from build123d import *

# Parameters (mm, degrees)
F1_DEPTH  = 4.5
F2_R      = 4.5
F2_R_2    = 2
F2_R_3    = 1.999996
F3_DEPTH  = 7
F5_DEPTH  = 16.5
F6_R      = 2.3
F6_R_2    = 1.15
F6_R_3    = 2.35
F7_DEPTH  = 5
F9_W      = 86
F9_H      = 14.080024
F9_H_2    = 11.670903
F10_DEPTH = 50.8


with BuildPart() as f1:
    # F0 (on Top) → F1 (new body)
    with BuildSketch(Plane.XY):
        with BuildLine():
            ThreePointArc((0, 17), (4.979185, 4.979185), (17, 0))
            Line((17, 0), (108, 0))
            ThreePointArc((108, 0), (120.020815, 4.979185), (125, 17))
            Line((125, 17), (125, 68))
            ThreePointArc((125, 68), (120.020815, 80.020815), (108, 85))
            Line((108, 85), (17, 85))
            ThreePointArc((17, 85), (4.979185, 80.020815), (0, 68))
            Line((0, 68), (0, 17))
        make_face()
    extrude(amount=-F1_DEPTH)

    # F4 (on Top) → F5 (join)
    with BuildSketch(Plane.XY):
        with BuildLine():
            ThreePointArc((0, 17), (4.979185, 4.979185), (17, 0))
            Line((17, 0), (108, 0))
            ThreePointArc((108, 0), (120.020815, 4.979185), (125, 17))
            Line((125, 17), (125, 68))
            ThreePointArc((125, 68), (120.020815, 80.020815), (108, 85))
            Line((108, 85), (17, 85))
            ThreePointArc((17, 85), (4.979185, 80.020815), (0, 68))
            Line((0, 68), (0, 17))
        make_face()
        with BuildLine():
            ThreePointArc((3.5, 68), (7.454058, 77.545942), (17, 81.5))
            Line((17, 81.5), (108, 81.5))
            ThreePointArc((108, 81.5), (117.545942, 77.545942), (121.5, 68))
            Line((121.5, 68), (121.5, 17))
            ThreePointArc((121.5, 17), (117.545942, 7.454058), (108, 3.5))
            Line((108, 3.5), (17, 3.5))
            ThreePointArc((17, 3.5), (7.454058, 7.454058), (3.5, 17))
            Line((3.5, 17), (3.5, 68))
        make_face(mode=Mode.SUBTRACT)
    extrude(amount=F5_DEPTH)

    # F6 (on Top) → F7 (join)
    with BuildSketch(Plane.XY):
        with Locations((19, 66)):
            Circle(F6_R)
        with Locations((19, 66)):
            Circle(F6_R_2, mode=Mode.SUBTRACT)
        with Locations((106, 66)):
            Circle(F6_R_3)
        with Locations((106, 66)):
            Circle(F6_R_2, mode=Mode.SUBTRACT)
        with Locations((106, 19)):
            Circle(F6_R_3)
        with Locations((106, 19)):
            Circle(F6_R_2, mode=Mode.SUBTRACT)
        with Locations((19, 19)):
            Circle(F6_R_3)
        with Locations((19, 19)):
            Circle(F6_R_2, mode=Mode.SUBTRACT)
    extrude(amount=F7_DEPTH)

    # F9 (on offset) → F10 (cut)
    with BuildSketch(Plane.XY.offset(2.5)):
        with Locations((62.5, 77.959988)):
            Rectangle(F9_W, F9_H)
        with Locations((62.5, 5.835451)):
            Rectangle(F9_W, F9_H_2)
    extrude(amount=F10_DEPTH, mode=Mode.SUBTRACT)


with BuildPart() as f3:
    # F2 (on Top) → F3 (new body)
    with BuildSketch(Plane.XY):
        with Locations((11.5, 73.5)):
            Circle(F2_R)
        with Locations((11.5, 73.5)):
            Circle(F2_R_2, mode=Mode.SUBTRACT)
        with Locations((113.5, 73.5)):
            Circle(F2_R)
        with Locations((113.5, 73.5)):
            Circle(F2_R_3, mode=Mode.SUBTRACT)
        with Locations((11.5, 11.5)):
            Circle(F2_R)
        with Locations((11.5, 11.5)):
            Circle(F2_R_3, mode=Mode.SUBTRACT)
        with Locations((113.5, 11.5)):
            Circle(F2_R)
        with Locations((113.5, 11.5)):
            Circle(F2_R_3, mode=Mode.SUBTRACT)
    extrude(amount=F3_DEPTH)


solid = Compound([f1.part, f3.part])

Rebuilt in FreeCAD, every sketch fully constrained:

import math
import FreeCAD as App
import Part
import Sketcher

V = App.Vector


def add_polygon(sketch, points):
    """Adds a closed chain of lines whose ends are joined by coincident constraints."""
    first, n = sketch.GeometryCount, len(points)
    for a, b in zip(points, points[1:] + points[:1]):
        sketch.addGeometry(Part.LineSegment(App.Vector(*a, 0), App.Vector(*b, 0)), False)
    for i in range(n):
        sketch.addConstraint(Sketcher.Constraint("Coincident", first + i, 2, first + (i + 1) % n, 1))

doc = App.newDocument("Part")
body = doc.addObject("PartDesign::Body", "Body")

# Sketch on XY plane
sketch1 = body.newObject("Sketcher::SketchObject", "Sketch")
sketch1.AttachmentSupport = (doc.getObject("XY_Plane"), [""])
sketch1.MapMode = "FlatFace"
sketch1.addGeometry([
    Part.ArcOfCircle(Part.Circle(V(17, 17, 0), V(0, 0, 1), 17), math.radians(-180), math.radians(-90)),  # 0
    Part.LineSegment(V(17, 0, 0), V(108, 0, 0)),  # 1
    Part.ArcOfCircle(Part.Circle(V(108, 17, 0), V(0, 0, 1), 17), math.radians(-90), math.radians(0)),  # 2
    Part.LineSegment(V(125, 17, 0), V(125, 68, 0)),  # 3
    Part.ArcOfCircle(Part.Circle(V(108, 68, 0), V(0, 0, 1), 17), math.radians(0), math.radians(90)),  # 4
    Part.LineSegment(V(108, 85, 0), V(17, 85, 0)),  # 5
    Part.ArcOfCircle(Part.Circle(V(17, 68, 0), V(0, 0, 1), 17), math.radians(90), math.radians(180)),  # 6
    Part.LineSegment(V(0, 68, 0), V(0, 17, 0)),  # 7
], False)
sketch1.addConstraint([
    Sketcher.Constraint("Tangent", 0, 2, 1, 1),
    Sketcher.Constraint("Tangent", 1, 2, 2, 1),
    Sketcher.Constraint("Tangent", 2, 2, 3, 1),
    Sketcher.Constraint("Tangent", 3, 2, 4, 1),
    Sketcher.Constraint("Tangent", 4, 2, 5, 1),
    Sketcher.Constraint("Tangent", 5, 2, 6, 1),
    Sketcher.Constraint("Tangent", 6, 2, 7, 1),
    Sketcher.Constraint("Tangent", 7, 2, 0, 1),
    Sketcher.Constraint("Horizontal", 1),
    Sketcher.Constraint("Vertical", 3),
    Sketcher.Constraint("Horizontal", 5),
    Sketcher.Constraint("Vertical", 7),
    Sketcher.Constraint("Equal", 0, 2),
    Sketcher.Constraint("Equal", 2, 4),
    Sketcher.Constraint("Equal", 4, 6),
    Sketcher.Constraint("PointOnObject", 0, 2, -1),
    Sketcher.Constraint("PointOnObject", 6, 2, -2),
    Sketcher.Constraint("Radius", 0, 17.000001),
    Sketcher.Constraint("DistanceX", 1, 1, 1, 2, 91.0),
    Sketcher.Constraint("DistanceY", 3, 1, 3, 2, 51.0),
])
pad1 = body.newObject("PartDesign::Pad", "Pad")
pad1.Profile = sketch1
pad1.Length = 4.5
pad1.Reversed = True

# Sketch on XY plane
sketch2 = body.newObject("Sketcher::SketchObject", "Sketch001")
sketch2.AttachmentSupport = (doc.getObject("XY_Plane"), [""])
sketch2.MapMode = "FlatFace"
sketch2.addGeometry([
    Part.ArcOfCircle(Part.Circle(V(17, 17, 0), V(0, 0, 1), 17), math.radians(-180), math.radians(-90)),  # 0
    Part.LineSegment(V(17, 0, 0), V(108, 0, 0)),  # 1
    Part.ArcOfCircle(Part.Circle(V(108, 17, 0), V(0, 0, 1), 17), math.radians(-90), math.radians(0)),  # 2
    Part.LineSegment(V(125, 17, 0), V(125, 68, 0)),  # 3
    Part.ArcOfCircle(Part.Circle(V(108, 68, 0), V(0, 0, 1), 17), math.radians(0), math.radians(90)),  # 4
    Part.LineSegment(V(108, 85, 0), V(17, 85, 0)),  # 5
    Part.ArcOfCircle(Part.Circle(V(17, 68, 0), V(0, 0, 1), 17), math.radians(90), math.radians(180)),  # 6
    Part.LineSegment(V(0, 68, 0), V(0, 17, 0)),  # 7
    Part.LineSegment(V(4, 17, 0), V(4, 68, 0)),  # 8
    Part.ArcOfCircle(Part.Circle(V(17, 68, 0), V(0, 0, 1), 13), math.radians(90), math.radians(180)),  # 9
    Part.LineSegment(V(17, 82, 0), V(108, 82, 0)),  # 10
    Part.ArcOfCircle(Part.Circle(V(108, 68, 0), V(0, 0, 1), 13), math.radians(0), math.radians(90)),  # 11
    Part.LineSegment(V(122, 68, 0), V(122, 17, 0)),  # 12
    Part.ArcOfCircle(Part.Circle(V(108, 17, 0), V(0, 0, 1), 13), math.radians(-90), math.radians(0)),  # 13
    Part.LineSegment(V(108, 4, 0), V(17, 4, 0)),  # 14
    Part.ArcOfCircle(Part.Circle(V(17, 17, 0), V(0, 0, 1), 13), math.radians(180), math.radians(270)),  # 15
], False)
sketch2.addConstraint([
    Sketcher.Constraint("Tangent", 0, 2, 1, 1),
    Sketcher.Constraint("Tangent", 1, 2, 2, 1),
    Sketcher.Constraint("Tangent", 2, 2, 3, 1),
    Sketcher.Constraint("Tangent", 3, 2, 4, 1),
    Sketcher.Constraint("Tangent", 4, 2, 5, 1),
    Sketcher.Constraint("Tangent", 5, 2, 6, 1),
    Sketcher.Constraint("Tangent", 6, 2, 7, 1),
    Sketcher.Constraint("Tangent", 7, 2, 0, 1),
    Sketcher.Constraint("Tangent", 8, 2, 9, 2),
    Sketcher.Constraint("Tangent", 9, 1, 10, 1),
    Sketcher.Constraint("Tangent", 10, 2, 11, 2),
    Sketcher.Constraint("Tangent", 11, 1, 12, 1),
    Sketcher.Constraint("Tangent", 12, 2, 13, 2),
    Sketcher.Constraint("Tangent", 13, 1, 14, 1),
    Sketcher.Constraint("Tangent", 14, 2, 15, 2),
    Sketcher.Constraint("Tangent", 15, 1, 8, 1),
    Sketcher.Constraint("Horizontal", 1),
    Sketcher.Constraint("Vertical", 3),
    Sketcher.Constraint("Horizontal", 5),
    Sketcher.Constraint("Vertical", 7),
    Sketcher.Constraint("Vertical", 8),
    Sketcher.Constraint("Horizontal", 10),
    Sketcher.Constraint("Vertical", 12),
    Sketcher.Constraint("Horizontal", 14),
    Sketcher.Constraint("Coincident", 9, 3, 6, 3),
    Sketcher.Constraint("Coincident", 11, 3, 4, 3),
    Sketcher.Constraint("Coincident", 13, 3, 2, 3),
    Sketcher.Constraint("Equal", 0, 2),
    Sketcher.Constraint("Equal", 2, 4),
    Sketcher.Constraint("Equal", 4, 6),
    Sketcher.Constraint("Equal", 13, 15),
    Sketcher.Constraint("PointOnObject", 0, 2, -1),
    Sketcher.Constraint("PointOnObject", 6, 2, -2),
    Sketcher.Constraint("Radius", 0, 17.000001),
    Sketcher.Constraint("Radius", 9, 13.499998),
    Sketcher.Constraint("DistanceX", 1, 1, 1, 2, 91.0),
    Sketcher.Constraint("DistanceY", 3, 1, 3, 2, 51.0),
])
pad2 = body.newObject("PartDesign::Pad", "Pad001")
pad2.Profile = sketch2
pad2.Length = 16.5

# Sketch on XY plane
sketch3 = body.newObject("Sketcher::SketchObject", "Sketch002")
sketch3.AttachmentSupport = (doc.getObject("XY_Plane"), [""])
sketch3.MapMode = "FlatFace"
sketch3.addGeometry([
    Part.Circle(V(19, 66, 0), V(0, 0, 1), 2.3),  # 0
    Part.Circle(V(19, 66, 0), V(0, 0, 1), 1.1),  # 1
    Part.Circle(V(106, 66, 0), V(0, 0, 1), 2.4),  # 2
    Part.Circle(V(106, 66, 0), V(0, 0, 1), 1.1),  # 3
    Part.Circle(V(106, 19, 0), V(0, 0, 1), 2.4),  # 4
    Part.Circle(V(106, 19, 0), V(0, 0, 1), 1.1),  # 5
    Part.Circle(V(19, 19, 0), V(0, 0, 1), 2.4),  # 6
    Part.Circle(V(19, 19, 0), V(0, 0, 1), 1.1),  # 7
], False)
sketch3.addConstraint([
    Sketcher.Constraint("Coincident", 1, 3, 0, 3),
    Sketcher.Constraint("Coincident", 3, 3, 2, 3),
    Sketcher.Constraint("Coincident", 5, 3, 4, 3),
    Sketcher.Constraint("Coincident", 7, 3, 6, 3),
    Sketcher.Constraint("Equal", 1, 3),
    Sketcher.Constraint("Equal", 2, 4),
    Sketcher.Constraint("Equal", 3, 5),
    Sketcher.Constraint("Equal", 4, 6),
    Sketcher.Constraint("Equal", 5, 7),
    Sketcher.Constraint("Horizontal", 1, 3, 2, 3),
    Sketcher.Constraint("Horizontal", 5, 3, 6, 3),
    Sketcher.Constraint("Vertical", 3, 3, 4, 3),
    Sketcher.Constraint("Vertical", 1, 3, 6, 3),
    Sketcher.Constraint("Diameter", 0, 4.6),
    Sketcher.Constraint("Diameter", 1, 2.3),
    Sketcher.Constraint("Diameter", 2, 4.7),
    Sketcher.Constraint("DistanceX", -1, 1, 0, 3, 19.0),
    Sketcher.Constraint("DistanceY", -1, 1, 0, 3, 66.0),
    Sketcher.Constraint("DistanceX", -1, 1, 2, 3, 106.0),
    Sketcher.Constraint("DistanceY", -1, 1, 4, 3, 19.0),
])
pad3 = body.newObject("PartDesign::Pad", "Pad002")
pad3.Profile = sketch3
pad3.Length = 5

# Sketch on XY plane
sketch4 = body.newObject("Sketcher::SketchObject", "Sketch003")
sketch4.AttachmentSupport = (doc.getObject("XY_Plane"), [""])
sketch4.MapMode = "FlatFace"
sketch4.AttachmentOffset = App.Placement(V(0, 0, 2.5), App.Rotation())
add_polygon(sketch4, [(20, 85), (20, 71), (106, 71), (106, 85)])  # lines 0-3
add_polygon(sketch4, [(20, 12), (20, 0), (106, 0), (106, 12)])  # lines 4-7
sketch4.addConstraint([
    Sketcher.Constraint("Vertical", 0),
    Sketcher.Constraint("Horizontal", 1),
    Sketcher.Constraint("Vertical", 2),
    Sketcher.Constraint("Horizontal", 3),
    Sketcher.Constraint("Vertical", 4),
    Sketcher.Constraint("Horizontal", 5),
    Sketcher.Constraint("Vertical", 6),
    Sketcher.Constraint("Horizontal", 7),
    Sketcher.Constraint("PointOnObject", 4, 2, -1),
    Sketcher.Constraint("Vertical", 3, 2, 4, 2),
    Sketcher.Constraint("Vertical", 2, 2, 5, 2),
    Sketcher.Constraint("DistanceX", 1, 1, 1, 2, 86.0),
    Sketcher.Constraint("DistanceY", -1, 1, 2, 2, 85.0),
    Sketcher.Constraint("DistanceX", -1, 1, 0, 2, 19.5),
    Sketcher.Constraint("DistanceY", 0, 2, 0, 1, 14.080024),
    Sketcher.Constraint("DistanceY", 4, 2, 4, 1, 11.670903),
])
pocket1 = body.newObject("PartDesign::Pocket", "Pocket")
pocket1.Profile = sketch4
pocket1.Length = 50.8
pocket1.Reversed = True
body2 = doc.addObject("PartDesign::Body", "Body001")
body2.AllowCompound = True

# Sketch on XY plane
sketch5 = body2.newObject("Sketcher::SketchObject", "Sketch004")
sketch5.AttachmentSupport = (doc.getObject("XY_Plane001"), [""])
sketch5.MapMode = "FlatFace"
sketch5.addGeometry([
    Part.Circle(V(11.5, 73.5, 0), V(0, 0, 1), 4.5),  # 0
    Part.Circle(V(11.5, 73.5, 0), V(0, 0, 1), 2),  # 1
    Part.Circle(V(113.5, 73.5, 0), V(0, 0, 1), 4.5),  # 2
    Part.Circle(V(113.5, 73.5, 0), V(0, 0, 1), 2),  # 3
    Part.Circle(V(11.5, 11.5, 0), V(0, 0, 1), 4.5),  # 4
    Part.Circle(V(11.5, 11.5, 0), V(0, 0, 1), 2),  # 5
    Part.Circle(V(113.5, 11.5, 0), V(0, 0, 1), 4.5),  # 6
    Part.Circle(V(113.5, 11.5, 0), V(0, 0, 1), 2),  # 7
], False)
sketch5.addConstraint([
    Sketcher.Constraint("Coincident", 1, 3, 0, 3),
    Sketcher.Constraint("Coincident", 3, 3, 2, 3),
    Sketcher.Constraint("Coincident", 5, 3, 4, 3),
    Sketcher.Constraint("Coincident", 7, 3, 6, 3),
    Sketcher.Constraint("Equal", 0, 2),
    Sketcher.Constraint("Equal", 2, 4),
    Sketcher.Constraint("Equal", 3, 5),
    Sketcher.Constraint("Equal", 4, 6),
    Sketcher.Constraint("Equal", 5, 7),
    Sketcher.Constraint("Horizontal", 1, 3, 2, 3),
    Sketcher.Constraint("Horizontal", 5, 3, 6, 3),
    Sketcher.Constraint("Vertical", 1, 3, 4, 3),
    Sketcher.Constraint("Vertical", 3, 3, 6, 3),
    Sketcher.Constraint("Diameter", 0, 9.0),
    Sketcher.Constraint("Diameter", 1, 4.0),
    Sketcher.Constraint("DistanceX", 0, 3, 2, 3, 102.0),
    Sketcher.Constraint("DistanceY", 4, 3, 0, 3, 62.0),
    Sketcher.Constraint("DistanceX", -1, 1, 0, 3, 11.5),
    Sketcher.Constraint("DistanceY", -1, 1, 0, 3, 73.5),
    Sketcher.Constraint("Diameter", 3, 3.999992),
])
pad4 = body2.newObject("PartDesign::Pad", "Pad003")
pad4.Profile = sketch5
pad4.Length = 7

doc.recompute()
